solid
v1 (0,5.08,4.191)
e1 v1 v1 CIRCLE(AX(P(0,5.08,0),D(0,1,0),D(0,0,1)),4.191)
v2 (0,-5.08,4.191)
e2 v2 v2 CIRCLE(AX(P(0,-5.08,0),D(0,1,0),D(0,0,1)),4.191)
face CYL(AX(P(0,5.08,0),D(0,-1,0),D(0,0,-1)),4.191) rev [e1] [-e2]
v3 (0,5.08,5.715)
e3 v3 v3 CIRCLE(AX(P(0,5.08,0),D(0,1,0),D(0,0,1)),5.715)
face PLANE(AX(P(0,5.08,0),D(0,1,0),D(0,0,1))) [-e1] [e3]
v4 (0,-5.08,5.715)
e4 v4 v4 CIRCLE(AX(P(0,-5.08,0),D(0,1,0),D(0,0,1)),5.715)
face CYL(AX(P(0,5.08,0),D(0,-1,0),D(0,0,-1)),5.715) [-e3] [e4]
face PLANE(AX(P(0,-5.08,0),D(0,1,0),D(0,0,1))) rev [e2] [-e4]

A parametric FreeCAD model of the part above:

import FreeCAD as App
import Part
import Sketcher
from FreeCAD import Vector
Q = App.Units.Quantity

doc = App.newDocument("Part")
params = doc.addObject("Spreadsheet::Sheet", "Params")
for row, (alias, value) in enumerate([
    ("sketch1_diameter", "0.45 in"),
    ("sketch1_diameter2", "0.33 in"),
    ("pad1_length", "0.4 in"),
], start=1):
    params.set(f"A{row}", alias)
    params.set(f"B{row}", "=" + value)
    params.setAlias(f"B{row}", alias)

body = doc.addObject("PartDesign::Body", "Body")

# Sketch on XZ plane
sketch1 = body.newObject("Sketcher::SketchObject", "Sketch")
sketch1.AttachmentSupport = (doc.getObject("XZ_Plane"), [""])
sketch1.MapMode = "FlatFace"
sketch1.addGeometry([
    Part.Circle(Vector(0, 0, 0), Vector(0, 0, 1), 5.7),
    Part.Circle(Vector(0, 0, 0), Vector(0, 0, 1), 4.2),
], False)
sketch1.addConstraint([
    Sketcher.Constraint("Coincident", 0, 3, -1, 1),
    Sketcher.Constraint("Coincident", 1, 3, -1, 1),
    Sketcher.Constraint("Diameter", 0, Q("0.45 in")),
    Sketcher.Constraint("Diameter", 1, Q("0.33 in")),
])
sketch1.setExpression("Constraints[2]", "Params.sketch1_diameter")
sketch1.setExpression("Constraints[3]", "Params.sketch1_diameter2")
pad1 = body.newObject("PartDesign::Pad", "Pad")
pad1.Profile = sketch1
pad1.setExpression("Length", "Params.pad1_length")
pad1.Midplane = True

doc.recompute()
